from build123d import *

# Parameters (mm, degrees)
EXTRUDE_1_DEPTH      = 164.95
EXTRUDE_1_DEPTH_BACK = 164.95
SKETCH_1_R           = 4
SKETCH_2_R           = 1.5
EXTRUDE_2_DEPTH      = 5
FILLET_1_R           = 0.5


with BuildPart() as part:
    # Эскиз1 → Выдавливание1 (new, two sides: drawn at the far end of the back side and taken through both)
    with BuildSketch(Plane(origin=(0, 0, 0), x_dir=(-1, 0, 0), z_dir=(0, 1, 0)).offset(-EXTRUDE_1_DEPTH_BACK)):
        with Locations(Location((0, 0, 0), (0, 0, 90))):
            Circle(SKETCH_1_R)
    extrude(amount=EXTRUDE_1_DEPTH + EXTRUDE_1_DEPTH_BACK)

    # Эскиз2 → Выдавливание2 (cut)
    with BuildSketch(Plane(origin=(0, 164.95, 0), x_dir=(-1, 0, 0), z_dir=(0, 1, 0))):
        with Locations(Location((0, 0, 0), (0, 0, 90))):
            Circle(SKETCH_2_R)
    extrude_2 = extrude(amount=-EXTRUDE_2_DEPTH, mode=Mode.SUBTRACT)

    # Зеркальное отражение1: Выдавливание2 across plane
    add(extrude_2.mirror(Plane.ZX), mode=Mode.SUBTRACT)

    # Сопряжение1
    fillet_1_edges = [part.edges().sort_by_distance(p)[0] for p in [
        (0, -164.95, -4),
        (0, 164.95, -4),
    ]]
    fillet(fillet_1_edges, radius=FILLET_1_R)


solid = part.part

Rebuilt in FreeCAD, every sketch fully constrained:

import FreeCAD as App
import Part
import Sketcher
Q = App.Units.Quantity


def edges_at(feature, points):
    """Names of the edges that pass closest to the given points."""
    edges = feature.Shape.Edges
    near = lambda p: min(range(len(edges)), key=lambda i: edges[i].distToShape(Part.Vertex(*p))[0])
    return sorted({f"Edge{near(p) + 1}" for p in points})

doc = App.newDocument("Part")
body = doc.addObject("PartDesign::Body", "Body")

sketch1 = body.newObject("Sketcher::SketchObject", "Sketch")
sketch1.AttachmentSupport = (doc.getObject("XZ_Plane"), [""])
sketch1.MapMode = "FlatFace"
sketch1.addGeometry(Part.Circle(App.Vector(0, 0, 0), App.Vector(0, 0, 1), 4), False)
sketch1.addConstraint([
    Sketcher.Constraint("Coincident", 0, 3, -1, 1),
    Sketcher.Constraint("Diameter", 0, Q("8 mm")),
])
pad1 = body.newObject("PartDesign::Pad", "Pad")
pad1.Profile = sketch1
pad1.Type = "TwoLengths"
pad1.Length = 164.95
pad1.Length2 = 164.95
pad1.Reversed = True

sketch2 = body.newObject("Sketcher::SketchObject", "Sketch001")
sketch2.AttachmentSupport = (doc.getObject("XZ_Plane"), [""])
sketch2.MapMode = "FlatFace"
sketch2.AttachmentOffset = App.Placement(App.Vector(0, 0, -164.95), App.Rotation())
sketch2.addGeometry(Part.Circle(App.Vector(0, 0, 0), App.Vector(0, 0, 1), 1.5), False)
sketch2.addConstraint([
    Sketcher.Constraint("Coincident", 0, 3, -1, 1),
    Sketcher.Constraint("Diameter", 0, Q("3 mm")),
])
pocket1 = body.newObject("PartDesign::Pocket", "Pocket")
pocket1.Profile = sketch2
pocket1.Length = 5
pocket1.Reversed = True
doc.recompute()

mirrored = body.newObject("PartDesign::Mirrored", "Mirrored")
mirrored.Originals = [pocket1]
mirrored.MirrorPlane = (doc.getObject("XZ_Plane"), [""])
body.Tip = mirrored
doc.recompute()

fillet = body.newObject("PartDesign::Fillet", "Fillet")
fillet.Base = (mirrored, edges_at(mirrored, [(0, -164.95, -4), (0, 164.95, -4)]))
fillet.Radius = 0.5

doc.recompute()
